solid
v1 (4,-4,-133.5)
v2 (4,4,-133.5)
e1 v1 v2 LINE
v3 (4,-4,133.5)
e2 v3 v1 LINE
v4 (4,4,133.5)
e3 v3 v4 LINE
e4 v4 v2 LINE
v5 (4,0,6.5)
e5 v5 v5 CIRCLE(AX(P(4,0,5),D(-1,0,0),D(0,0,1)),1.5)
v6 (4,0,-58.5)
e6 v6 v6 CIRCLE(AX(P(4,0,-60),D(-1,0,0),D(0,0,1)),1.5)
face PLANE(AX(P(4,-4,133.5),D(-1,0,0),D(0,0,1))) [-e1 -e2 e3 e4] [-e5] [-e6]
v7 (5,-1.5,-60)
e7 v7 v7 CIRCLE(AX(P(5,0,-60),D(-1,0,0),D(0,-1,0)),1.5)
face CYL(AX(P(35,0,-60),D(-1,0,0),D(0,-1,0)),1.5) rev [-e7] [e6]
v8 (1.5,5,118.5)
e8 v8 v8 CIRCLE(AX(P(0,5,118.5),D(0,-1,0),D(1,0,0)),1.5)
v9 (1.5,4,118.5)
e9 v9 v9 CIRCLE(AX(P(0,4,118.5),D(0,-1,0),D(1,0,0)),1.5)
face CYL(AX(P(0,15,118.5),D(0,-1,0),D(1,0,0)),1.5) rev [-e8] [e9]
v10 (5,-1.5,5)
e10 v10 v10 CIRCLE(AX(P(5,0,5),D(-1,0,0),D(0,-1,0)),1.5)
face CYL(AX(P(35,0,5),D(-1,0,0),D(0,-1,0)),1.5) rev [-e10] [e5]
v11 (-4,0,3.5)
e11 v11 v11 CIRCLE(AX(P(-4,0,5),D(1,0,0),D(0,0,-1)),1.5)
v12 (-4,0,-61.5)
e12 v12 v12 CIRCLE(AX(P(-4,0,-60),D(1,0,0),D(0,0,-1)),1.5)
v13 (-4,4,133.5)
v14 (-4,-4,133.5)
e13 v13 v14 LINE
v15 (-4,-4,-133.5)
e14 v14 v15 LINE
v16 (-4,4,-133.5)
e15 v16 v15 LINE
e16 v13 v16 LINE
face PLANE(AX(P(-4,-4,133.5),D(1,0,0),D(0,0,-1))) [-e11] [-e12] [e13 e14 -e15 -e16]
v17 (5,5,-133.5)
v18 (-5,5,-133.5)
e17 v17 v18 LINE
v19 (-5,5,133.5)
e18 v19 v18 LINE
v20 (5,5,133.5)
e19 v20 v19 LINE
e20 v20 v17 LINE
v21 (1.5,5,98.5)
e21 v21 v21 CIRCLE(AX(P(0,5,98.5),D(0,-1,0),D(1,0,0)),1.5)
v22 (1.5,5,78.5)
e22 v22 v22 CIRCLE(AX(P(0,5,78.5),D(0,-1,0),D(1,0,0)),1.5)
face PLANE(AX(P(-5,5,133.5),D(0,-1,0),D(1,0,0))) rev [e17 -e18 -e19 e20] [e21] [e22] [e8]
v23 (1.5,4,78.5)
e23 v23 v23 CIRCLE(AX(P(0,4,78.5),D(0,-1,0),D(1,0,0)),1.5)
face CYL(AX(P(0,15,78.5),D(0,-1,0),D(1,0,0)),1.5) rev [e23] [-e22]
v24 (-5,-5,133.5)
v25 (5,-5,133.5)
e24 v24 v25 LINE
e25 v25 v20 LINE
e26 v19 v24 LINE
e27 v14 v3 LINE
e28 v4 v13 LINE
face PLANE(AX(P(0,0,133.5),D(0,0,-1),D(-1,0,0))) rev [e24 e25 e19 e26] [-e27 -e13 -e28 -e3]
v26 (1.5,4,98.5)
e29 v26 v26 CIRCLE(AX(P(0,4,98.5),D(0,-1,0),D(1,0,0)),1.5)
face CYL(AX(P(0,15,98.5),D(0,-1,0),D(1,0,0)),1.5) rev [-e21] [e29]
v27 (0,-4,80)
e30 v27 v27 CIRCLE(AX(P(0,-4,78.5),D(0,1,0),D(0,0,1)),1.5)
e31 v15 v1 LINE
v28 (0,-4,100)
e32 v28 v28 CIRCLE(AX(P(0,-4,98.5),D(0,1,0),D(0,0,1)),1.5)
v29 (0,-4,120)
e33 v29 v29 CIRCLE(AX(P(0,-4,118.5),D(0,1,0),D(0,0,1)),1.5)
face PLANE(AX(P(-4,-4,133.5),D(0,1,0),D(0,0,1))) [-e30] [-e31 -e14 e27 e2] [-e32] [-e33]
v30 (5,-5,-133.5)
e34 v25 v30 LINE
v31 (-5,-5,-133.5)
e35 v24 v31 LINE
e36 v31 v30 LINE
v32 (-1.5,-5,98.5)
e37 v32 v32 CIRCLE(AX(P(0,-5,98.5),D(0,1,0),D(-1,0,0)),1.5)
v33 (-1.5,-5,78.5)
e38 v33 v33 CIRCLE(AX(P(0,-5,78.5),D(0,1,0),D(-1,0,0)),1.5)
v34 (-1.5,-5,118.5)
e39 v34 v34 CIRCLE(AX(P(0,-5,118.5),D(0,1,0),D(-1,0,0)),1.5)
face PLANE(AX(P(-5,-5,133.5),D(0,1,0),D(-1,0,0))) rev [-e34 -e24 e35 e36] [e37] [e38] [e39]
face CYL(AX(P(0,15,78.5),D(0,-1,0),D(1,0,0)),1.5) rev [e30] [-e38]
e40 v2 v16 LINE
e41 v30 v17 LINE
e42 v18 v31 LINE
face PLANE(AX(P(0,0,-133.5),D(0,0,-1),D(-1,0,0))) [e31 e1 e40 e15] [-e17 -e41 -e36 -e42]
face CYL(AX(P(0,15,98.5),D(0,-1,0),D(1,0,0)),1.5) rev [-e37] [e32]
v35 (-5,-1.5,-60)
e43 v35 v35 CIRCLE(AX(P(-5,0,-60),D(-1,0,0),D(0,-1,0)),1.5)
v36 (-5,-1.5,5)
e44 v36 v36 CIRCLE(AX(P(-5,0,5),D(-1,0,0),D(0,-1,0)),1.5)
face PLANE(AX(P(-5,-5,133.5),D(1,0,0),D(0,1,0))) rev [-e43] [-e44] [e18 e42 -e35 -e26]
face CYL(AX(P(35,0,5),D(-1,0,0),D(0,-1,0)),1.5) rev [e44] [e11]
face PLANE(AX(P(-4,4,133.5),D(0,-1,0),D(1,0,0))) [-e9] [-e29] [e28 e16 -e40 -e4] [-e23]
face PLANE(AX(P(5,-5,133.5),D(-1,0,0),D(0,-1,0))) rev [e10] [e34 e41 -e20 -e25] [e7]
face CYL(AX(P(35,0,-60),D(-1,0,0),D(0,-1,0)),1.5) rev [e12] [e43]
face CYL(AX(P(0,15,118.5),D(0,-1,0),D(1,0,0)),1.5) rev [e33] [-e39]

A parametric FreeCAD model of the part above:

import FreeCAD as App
import Part
import Sketcher

V = App.Vector
Q = App.Units.Quantity


def add_polygon(sketch, points):
    """Adds a closed chain of lines whose ends are joined by coincident constraints."""
    first, n = sketch.GeometryCount, len(points)
    for a, b in zip(points, points[1:] + points[:1]):
        sketch.addGeometry(Part.LineSegment(App.Vector(*a, 0), App.Vector(*b, 0)), False)
    for i in range(n):
        sketch.addConstraint(Sketcher.Constraint("Coincident", first + i, 2, first + (i + 1) % n, 1))

doc = App.newDocument("Part")
body = doc.addObject("PartDesign::Body", "Body")

# Sketch on XY plane
sketch1 = body.newObject("Sketcher::SketchObject", "Sketch")
sketch1.AttachmentSupport = (doc.getObject("XY_Plane"), [""])
sketch1.MapMode = "FlatFace"
add_polygon(sketch1, [(-5, 5), (-5, -5), (5, -5), (5, 5)])  # lines 0-3
add_polygon(sketch1, [(4, -4), (-4, -4), (-4, 4), (4, 4)])  # lines 4-7
sketch1.addConstraint(Sketcher.Constraint("Vertical", 0))
sketch1.addConstraint(Sketcher.Constraint("Horizontal", 1))
sketch1.addConstraint(Sketcher.Constraint("Vertical", 2))
sketch1.addConstraint(Sketcher.Constraint("Horizontal", 3))
sketch1.addConstraint(Sketcher.Constraint("Horizontal", 4))
sketch1.addConstraint(Sketcher.Constraint("Vertical", 5))
sketch1.addConstraint(Sketcher.Constraint("Horizontal", 6))
sketch1.addConstraint(Sketcher.Constraint("Vertical", 7))
sketch1.addConstraint(Sketcher.Constraint("Symmetric", 0, 2, 2, 2, -1, 1))
sketch1.addConstraint(Sketcher.Constraint("Symmetric", 4, 2, 6, 2, -1, 1))
sketch1.addConstraint(Sketcher.Constraint("Equal", 3, 0))
sketch1.addConstraint(Sketcher.Constraint("Equal", 6, 5))
sketch1.addConstraint(Sketcher.Constraint("DistanceX", 1, 1, 1, 2, Q("10 mm")))
sketch1.addConstraint(Sketcher.Constraint("DistanceX", 4, 2, 4, 1, Q("8 mm")))
pad1 = body.newObject("PartDesign::Pad", "Pad")
pad1.Profile = sketch1
pad1.Length = 267
pad1.Midplane = True

# Sketch on XZ plane
sketch2 = body.newObject("Sketcher::SketchObject", "Sketch001")
sketch2.AttachmentSupport = (doc.getObject("XZ_Plane"), [""])
sketch2.MapMode = "FlatFace"
sketch2.AttachmentOffset = App.Placement(V(0, 0, 5), App.Rotation())
sketch2.addGeometry(Part.Circle(V(0, 118.5, 0), V(0, 0, 1), 1.5), False)
sketch2.addGeometry(Part.Circle(V(0, 98.5, 0), V(0, 0, 1), 1.5), False)
sketch2.addGeometry(Part.Circle(V(0, 78.5, 0), V(0, 0, 1), 1.5), False)
sketch2.addConstraint(Sketcher.Constraint("Equal", 0, 1))
sketch2.addConstraint(Sketcher.Constraint("Equal", 1, 2))
sketch2.addConstraint(Sketcher.Constraint("PointOnObject", 0, 3, -2))
sketch2.addConstraint(Sketcher.Constraint("PointOnObject", 1, 3, -2))
sketch2.addConstraint(Sketcher.Constraint("PointOnObject", 2, 3, -2))
sketch2.addConstraint(Sketcher.Constraint("Diameter", 0, Q("3 mm")))
sketch2.addConstraint(Sketcher.Constraint("DistanceY", 1, 3, 0, 3, Q("20 mm")))
sketch2.addConstraint(Sketcher.Constraint("DistanceY", 2, 3, 1, 3, Q("20 mm")))
sketch2.addConstraint(Sketcher.Constraint("DistanceY", -1, 1, 0, 3, Q("118.5 mm")))
pocket1 = body.newObject("PartDesign::Pocket", "Pocket")
pocket1.Profile = sketch2
pocket1.Length = 40
pocket1.Midplane = True

# Sketch on YZ plane
sketch3 = body.newObject("Sketcher::SketchObject", "Sketch002")
sketch3.AttachmentSupport = (doc.getObject("YZ_Plane"), [""])
sketch3.MapMode = "FlatFace"
sketch3.AttachmentOffset = App.Placement(V(0, 0, -5), App.Rotation())
sketch3.addGeometry(Part.Circle(V(0, -60, 0), V(0, 0, 1), 1.5), False)
sketch3.addGeometry(Part.Circle(V(0, 5, 0), V(0, 0, 1), 1.5), False)
sketch3.addConstraint(Sketcher.Constraint("Equal", 0, 1))
sketch3.addConstraint(Sketcher.Constraint("PointOnObject", 0, 3, -2))
sketch3.addConstraint(Sketcher.Constraint("PointOnObject", 1, 3, -2))
sketch3.addConstraint(Sketcher.Constraint("Diameter", 0, Q("3 mm")))
sketch3.addConstraint(Sketcher.Constraint("DistanceY", 0, 3, -1, 1, Q("60 mm")))
sketch3.addConstraint(Sketcher.Constraint("DistanceY", -1, 1, 1, 3, Q("5 mm")))
pocket2 = body.newObject("PartDesign::Pocket", "Pocket001")
pocket2.Profile = sketch3
pocket2.Length = 40
pocket2.Reversed = True

doc.recompute()
